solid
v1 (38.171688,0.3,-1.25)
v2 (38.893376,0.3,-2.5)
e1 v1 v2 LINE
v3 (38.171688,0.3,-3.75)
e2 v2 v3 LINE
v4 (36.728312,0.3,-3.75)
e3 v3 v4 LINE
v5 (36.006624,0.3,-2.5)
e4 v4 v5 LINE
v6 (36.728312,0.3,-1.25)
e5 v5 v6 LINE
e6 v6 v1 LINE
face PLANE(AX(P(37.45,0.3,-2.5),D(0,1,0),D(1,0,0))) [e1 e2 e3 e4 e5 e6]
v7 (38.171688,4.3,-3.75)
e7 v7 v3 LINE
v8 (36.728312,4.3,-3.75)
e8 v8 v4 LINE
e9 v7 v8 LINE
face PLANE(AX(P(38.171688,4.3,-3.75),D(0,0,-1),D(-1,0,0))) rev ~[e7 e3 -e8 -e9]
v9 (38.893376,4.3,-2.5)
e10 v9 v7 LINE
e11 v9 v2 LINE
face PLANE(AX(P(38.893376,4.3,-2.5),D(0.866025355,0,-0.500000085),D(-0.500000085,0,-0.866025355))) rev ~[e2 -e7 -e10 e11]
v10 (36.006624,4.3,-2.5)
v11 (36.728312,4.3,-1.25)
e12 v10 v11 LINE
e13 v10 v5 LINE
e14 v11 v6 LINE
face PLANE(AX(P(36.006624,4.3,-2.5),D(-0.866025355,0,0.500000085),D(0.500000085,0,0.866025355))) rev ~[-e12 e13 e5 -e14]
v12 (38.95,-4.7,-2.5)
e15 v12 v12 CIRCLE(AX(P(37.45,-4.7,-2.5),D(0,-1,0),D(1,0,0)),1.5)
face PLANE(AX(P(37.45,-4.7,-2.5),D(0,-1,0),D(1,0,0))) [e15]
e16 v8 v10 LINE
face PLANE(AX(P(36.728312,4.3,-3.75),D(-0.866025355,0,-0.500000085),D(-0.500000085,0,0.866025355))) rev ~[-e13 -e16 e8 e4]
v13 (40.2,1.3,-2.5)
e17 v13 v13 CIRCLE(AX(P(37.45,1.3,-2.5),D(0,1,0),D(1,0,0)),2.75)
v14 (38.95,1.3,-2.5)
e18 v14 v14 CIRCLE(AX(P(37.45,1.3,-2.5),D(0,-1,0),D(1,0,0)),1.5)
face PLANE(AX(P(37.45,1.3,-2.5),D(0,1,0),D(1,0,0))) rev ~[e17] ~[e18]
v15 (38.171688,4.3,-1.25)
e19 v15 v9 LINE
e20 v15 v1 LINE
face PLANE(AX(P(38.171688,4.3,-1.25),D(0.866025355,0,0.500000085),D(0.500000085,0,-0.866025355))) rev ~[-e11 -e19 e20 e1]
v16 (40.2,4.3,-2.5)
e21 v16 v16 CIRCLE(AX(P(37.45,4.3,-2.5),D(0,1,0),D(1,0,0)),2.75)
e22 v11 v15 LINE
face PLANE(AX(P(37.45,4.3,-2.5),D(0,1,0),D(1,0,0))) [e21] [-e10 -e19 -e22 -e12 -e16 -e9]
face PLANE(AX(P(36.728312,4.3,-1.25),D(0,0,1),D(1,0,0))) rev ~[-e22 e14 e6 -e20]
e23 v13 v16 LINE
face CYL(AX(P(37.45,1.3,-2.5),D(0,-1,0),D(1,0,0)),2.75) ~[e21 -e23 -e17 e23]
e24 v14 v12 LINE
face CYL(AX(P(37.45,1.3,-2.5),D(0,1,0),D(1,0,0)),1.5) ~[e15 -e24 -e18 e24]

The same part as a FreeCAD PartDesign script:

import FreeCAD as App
import Part
import Sketcher
from FreeCAD import Vector
Q = App.Units.Quantity


def add_polygon(sketch, points):
    """Adds a closed chain of lines whose ends are joined by coincident constraints."""
    first, n = sketch.GeometryCount, len(points)
    for a, b in zip(points, points[1:] + points[:1]):
        sketch.addGeometry(Part.LineSegment(App.Vector(*a, 0), App.Vector(*b, 0)), False)
    for i in range(n):
        sketch.addConstraint(Sketcher.Constraint("Coincident", first + i, 2, first + (i + 1) % n, 1))

doc = App.newDocument("Part")
body = doc.addObject("PartDesign::Body", "Body")

# Sketch on XY plane
sketch1 = body.newObject("Sketcher::SketchObject", "Sketch")
sketch1.AttachmentSupport = (doc.getObject("XY_Plane"), [""])
sketch1.MapMode = "FlatFace"
sketch1.addGeometry(Part.Circle(Vector(0, 0, 0), Vector(0, 0, 1), 2.8), False)
sketch1.addConstraint(Sketcher.Constraint("Coincident", 0, 3, -1, 1))
sketch1.addConstraint(Sketcher.Constraint("Diameter", 0, 5.5))
pad1 = body.newObject("PartDesign::Pad", "Pad")
pad1.Profile = sketch1
pad1.Length = 3

# Sketch on XY plane
sketch2 = body.newObject("Sketcher::SketchObject", "Sketch001")
sketch2.AttachmentSupport = (doc.getObject("XY_Plane"), [""])
sketch2.MapMode = "FlatFace"
sketch2.addGeometry(Part.Circle(Vector(0, 0, 0), Vector(0, 0, 1), 1.5), False)
sketch2.addConstraint(Sketcher.Constraint("Coincident", 0, 3, -1, 1))
sketch2.addConstraint(Sketcher.Constraint("Diameter", 0, 3.0))
pad2 = body.newObject("PartDesign::Pad", "Pad001")
pad2.Profile = sketch2
pad2.Length = 6
pad2.Reversed = True

# Sketch on XY plane
sketch3 = body.newObject("Sketcher::SketchObject", "Sketch002")
sketch3.AttachmentSupport = (doc.getObject("XY_Plane"), [""])
sketch3.MapMode = "FlatFace"
sketch3.AttachmentOffset = App.Placement(Vector(0, 0, 3), App.Rotation())
add_polygon(sketch3, [(0.7, -1.2), (1.4, 0), (0.7, 1.2), (-0.7, 1.2), (-1.4, 0), (-0.7, -1.2)])  # lines 0-5
sketch3.addConstraint(Sketcher.Constraint("Horizontal", 2))
sketch3.addConstraint(Sketcher.Constraint("Horizontal", 5))
sketch3.addConstraint(Sketcher.Constraint("Symmetric", 0, 2, 3, 2, -1, 1))
sketch3.addConstraint(Sketcher.Constraint("Symmetric", 1, 2, 4, 2, -1, 1))
sketch3.addConstraint(Sketcher.Constraint("PointOnObject", 0, 2, -1))
sketch3.addConstraint(Sketcher.Constraint("Parallel", 0, 3))
sketch3.addConstraint(Sketcher.Constraint("Vertical", 2, 2, 4, 2))
sketch3.addConstraint(Sketcher.Constraint("Angle", 0, Q("59.999994 deg")))
sketch3.addConstraint(Sketcher.Constraint("DistanceY", 4, 2, 2, 2, 2.5))
sketch3.addConstraint(Sketcher.Constraint("DistanceX", 2, 2, 2, 1, 1.443376))
pocket1 = body.newObject("PartDesign::Pocket", "Pocket")
pocket1.Profile = sketch3
pocket1.Length = 4
body2 = doc.addObject("PartDesign::Body", "Body001")
doc.recompute()

body.Placement = App.Placement(Vector(37.45, 1.3, -2.5), App.Rotation(Vector(-1, 0, 0), 90))
boolean = body2.newObject("PartDesign::Boolean", "Boolean")
boolean.Type = "Fuse"
boolean.addObjects([body])

doc.recompute()
